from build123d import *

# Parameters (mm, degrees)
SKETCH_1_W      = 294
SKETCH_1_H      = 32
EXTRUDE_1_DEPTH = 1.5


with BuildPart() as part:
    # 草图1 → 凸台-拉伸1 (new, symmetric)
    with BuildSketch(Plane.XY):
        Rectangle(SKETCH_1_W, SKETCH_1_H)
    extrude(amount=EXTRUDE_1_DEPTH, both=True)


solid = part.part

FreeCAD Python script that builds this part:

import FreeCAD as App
import Part
import Sketcher

V = App.Vector


def add_polygon(sketch, points):
    """Adds a closed chain of lines whose ends are joined by coincident constraints."""
    first, n = sketch.GeometryCount, len(points)
    for a, b in zip(points, points[1:] + points[:1]):
        sketch.addGeometry(Part.LineSegment(App.Vector(*a, 0), App.Vector(*b, 0)), False)
    for i in range(n):
        sketch.addConstraint(Sketcher.Constraint("Coincident", first + i, 2, first + (i + 1) % n, 1))

doc = App.newDocument("Part")
body = doc.addObject("PartDesign::Body", "Body")

sketch1 = doc.addObject("Sketcher::SketchObject", "Sketch")
body.addObject(sketch1)
sketch1.AttachmentSupport = (doc.XY_Plane, [""])
sketch1.MapMode = "FlatFace"
add_polygon(sketch1, [(-147, 16), (-147, -16), (147, -16), (147, 16)])
sketch1.addConstraint([
    Sketcher.Constraint("Vertical", 0),
    Sketcher.Constraint("Horizontal", 1),
    Sketcher.Constraint("Vertical", 2),
    Sketcher.Constraint("Horizontal", 3),
    Sketcher.Constraint("Symmetric", 0, 2, 2, 2, -1, 1),
    Sketcher.Constraint("DistanceX", 1, 1, 1, 2, 294.0),
    Sketcher.Constraint("DistanceY", 0, 2, 0, 1, 32.0),
])
pad1 = doc.addObject("PartDesign::Pad", "Pad")
body.addObject(pad1)
pad1.Profile = sketch1
pad1.Length = 3
pad1.Midplane = True

doc.recompute()
